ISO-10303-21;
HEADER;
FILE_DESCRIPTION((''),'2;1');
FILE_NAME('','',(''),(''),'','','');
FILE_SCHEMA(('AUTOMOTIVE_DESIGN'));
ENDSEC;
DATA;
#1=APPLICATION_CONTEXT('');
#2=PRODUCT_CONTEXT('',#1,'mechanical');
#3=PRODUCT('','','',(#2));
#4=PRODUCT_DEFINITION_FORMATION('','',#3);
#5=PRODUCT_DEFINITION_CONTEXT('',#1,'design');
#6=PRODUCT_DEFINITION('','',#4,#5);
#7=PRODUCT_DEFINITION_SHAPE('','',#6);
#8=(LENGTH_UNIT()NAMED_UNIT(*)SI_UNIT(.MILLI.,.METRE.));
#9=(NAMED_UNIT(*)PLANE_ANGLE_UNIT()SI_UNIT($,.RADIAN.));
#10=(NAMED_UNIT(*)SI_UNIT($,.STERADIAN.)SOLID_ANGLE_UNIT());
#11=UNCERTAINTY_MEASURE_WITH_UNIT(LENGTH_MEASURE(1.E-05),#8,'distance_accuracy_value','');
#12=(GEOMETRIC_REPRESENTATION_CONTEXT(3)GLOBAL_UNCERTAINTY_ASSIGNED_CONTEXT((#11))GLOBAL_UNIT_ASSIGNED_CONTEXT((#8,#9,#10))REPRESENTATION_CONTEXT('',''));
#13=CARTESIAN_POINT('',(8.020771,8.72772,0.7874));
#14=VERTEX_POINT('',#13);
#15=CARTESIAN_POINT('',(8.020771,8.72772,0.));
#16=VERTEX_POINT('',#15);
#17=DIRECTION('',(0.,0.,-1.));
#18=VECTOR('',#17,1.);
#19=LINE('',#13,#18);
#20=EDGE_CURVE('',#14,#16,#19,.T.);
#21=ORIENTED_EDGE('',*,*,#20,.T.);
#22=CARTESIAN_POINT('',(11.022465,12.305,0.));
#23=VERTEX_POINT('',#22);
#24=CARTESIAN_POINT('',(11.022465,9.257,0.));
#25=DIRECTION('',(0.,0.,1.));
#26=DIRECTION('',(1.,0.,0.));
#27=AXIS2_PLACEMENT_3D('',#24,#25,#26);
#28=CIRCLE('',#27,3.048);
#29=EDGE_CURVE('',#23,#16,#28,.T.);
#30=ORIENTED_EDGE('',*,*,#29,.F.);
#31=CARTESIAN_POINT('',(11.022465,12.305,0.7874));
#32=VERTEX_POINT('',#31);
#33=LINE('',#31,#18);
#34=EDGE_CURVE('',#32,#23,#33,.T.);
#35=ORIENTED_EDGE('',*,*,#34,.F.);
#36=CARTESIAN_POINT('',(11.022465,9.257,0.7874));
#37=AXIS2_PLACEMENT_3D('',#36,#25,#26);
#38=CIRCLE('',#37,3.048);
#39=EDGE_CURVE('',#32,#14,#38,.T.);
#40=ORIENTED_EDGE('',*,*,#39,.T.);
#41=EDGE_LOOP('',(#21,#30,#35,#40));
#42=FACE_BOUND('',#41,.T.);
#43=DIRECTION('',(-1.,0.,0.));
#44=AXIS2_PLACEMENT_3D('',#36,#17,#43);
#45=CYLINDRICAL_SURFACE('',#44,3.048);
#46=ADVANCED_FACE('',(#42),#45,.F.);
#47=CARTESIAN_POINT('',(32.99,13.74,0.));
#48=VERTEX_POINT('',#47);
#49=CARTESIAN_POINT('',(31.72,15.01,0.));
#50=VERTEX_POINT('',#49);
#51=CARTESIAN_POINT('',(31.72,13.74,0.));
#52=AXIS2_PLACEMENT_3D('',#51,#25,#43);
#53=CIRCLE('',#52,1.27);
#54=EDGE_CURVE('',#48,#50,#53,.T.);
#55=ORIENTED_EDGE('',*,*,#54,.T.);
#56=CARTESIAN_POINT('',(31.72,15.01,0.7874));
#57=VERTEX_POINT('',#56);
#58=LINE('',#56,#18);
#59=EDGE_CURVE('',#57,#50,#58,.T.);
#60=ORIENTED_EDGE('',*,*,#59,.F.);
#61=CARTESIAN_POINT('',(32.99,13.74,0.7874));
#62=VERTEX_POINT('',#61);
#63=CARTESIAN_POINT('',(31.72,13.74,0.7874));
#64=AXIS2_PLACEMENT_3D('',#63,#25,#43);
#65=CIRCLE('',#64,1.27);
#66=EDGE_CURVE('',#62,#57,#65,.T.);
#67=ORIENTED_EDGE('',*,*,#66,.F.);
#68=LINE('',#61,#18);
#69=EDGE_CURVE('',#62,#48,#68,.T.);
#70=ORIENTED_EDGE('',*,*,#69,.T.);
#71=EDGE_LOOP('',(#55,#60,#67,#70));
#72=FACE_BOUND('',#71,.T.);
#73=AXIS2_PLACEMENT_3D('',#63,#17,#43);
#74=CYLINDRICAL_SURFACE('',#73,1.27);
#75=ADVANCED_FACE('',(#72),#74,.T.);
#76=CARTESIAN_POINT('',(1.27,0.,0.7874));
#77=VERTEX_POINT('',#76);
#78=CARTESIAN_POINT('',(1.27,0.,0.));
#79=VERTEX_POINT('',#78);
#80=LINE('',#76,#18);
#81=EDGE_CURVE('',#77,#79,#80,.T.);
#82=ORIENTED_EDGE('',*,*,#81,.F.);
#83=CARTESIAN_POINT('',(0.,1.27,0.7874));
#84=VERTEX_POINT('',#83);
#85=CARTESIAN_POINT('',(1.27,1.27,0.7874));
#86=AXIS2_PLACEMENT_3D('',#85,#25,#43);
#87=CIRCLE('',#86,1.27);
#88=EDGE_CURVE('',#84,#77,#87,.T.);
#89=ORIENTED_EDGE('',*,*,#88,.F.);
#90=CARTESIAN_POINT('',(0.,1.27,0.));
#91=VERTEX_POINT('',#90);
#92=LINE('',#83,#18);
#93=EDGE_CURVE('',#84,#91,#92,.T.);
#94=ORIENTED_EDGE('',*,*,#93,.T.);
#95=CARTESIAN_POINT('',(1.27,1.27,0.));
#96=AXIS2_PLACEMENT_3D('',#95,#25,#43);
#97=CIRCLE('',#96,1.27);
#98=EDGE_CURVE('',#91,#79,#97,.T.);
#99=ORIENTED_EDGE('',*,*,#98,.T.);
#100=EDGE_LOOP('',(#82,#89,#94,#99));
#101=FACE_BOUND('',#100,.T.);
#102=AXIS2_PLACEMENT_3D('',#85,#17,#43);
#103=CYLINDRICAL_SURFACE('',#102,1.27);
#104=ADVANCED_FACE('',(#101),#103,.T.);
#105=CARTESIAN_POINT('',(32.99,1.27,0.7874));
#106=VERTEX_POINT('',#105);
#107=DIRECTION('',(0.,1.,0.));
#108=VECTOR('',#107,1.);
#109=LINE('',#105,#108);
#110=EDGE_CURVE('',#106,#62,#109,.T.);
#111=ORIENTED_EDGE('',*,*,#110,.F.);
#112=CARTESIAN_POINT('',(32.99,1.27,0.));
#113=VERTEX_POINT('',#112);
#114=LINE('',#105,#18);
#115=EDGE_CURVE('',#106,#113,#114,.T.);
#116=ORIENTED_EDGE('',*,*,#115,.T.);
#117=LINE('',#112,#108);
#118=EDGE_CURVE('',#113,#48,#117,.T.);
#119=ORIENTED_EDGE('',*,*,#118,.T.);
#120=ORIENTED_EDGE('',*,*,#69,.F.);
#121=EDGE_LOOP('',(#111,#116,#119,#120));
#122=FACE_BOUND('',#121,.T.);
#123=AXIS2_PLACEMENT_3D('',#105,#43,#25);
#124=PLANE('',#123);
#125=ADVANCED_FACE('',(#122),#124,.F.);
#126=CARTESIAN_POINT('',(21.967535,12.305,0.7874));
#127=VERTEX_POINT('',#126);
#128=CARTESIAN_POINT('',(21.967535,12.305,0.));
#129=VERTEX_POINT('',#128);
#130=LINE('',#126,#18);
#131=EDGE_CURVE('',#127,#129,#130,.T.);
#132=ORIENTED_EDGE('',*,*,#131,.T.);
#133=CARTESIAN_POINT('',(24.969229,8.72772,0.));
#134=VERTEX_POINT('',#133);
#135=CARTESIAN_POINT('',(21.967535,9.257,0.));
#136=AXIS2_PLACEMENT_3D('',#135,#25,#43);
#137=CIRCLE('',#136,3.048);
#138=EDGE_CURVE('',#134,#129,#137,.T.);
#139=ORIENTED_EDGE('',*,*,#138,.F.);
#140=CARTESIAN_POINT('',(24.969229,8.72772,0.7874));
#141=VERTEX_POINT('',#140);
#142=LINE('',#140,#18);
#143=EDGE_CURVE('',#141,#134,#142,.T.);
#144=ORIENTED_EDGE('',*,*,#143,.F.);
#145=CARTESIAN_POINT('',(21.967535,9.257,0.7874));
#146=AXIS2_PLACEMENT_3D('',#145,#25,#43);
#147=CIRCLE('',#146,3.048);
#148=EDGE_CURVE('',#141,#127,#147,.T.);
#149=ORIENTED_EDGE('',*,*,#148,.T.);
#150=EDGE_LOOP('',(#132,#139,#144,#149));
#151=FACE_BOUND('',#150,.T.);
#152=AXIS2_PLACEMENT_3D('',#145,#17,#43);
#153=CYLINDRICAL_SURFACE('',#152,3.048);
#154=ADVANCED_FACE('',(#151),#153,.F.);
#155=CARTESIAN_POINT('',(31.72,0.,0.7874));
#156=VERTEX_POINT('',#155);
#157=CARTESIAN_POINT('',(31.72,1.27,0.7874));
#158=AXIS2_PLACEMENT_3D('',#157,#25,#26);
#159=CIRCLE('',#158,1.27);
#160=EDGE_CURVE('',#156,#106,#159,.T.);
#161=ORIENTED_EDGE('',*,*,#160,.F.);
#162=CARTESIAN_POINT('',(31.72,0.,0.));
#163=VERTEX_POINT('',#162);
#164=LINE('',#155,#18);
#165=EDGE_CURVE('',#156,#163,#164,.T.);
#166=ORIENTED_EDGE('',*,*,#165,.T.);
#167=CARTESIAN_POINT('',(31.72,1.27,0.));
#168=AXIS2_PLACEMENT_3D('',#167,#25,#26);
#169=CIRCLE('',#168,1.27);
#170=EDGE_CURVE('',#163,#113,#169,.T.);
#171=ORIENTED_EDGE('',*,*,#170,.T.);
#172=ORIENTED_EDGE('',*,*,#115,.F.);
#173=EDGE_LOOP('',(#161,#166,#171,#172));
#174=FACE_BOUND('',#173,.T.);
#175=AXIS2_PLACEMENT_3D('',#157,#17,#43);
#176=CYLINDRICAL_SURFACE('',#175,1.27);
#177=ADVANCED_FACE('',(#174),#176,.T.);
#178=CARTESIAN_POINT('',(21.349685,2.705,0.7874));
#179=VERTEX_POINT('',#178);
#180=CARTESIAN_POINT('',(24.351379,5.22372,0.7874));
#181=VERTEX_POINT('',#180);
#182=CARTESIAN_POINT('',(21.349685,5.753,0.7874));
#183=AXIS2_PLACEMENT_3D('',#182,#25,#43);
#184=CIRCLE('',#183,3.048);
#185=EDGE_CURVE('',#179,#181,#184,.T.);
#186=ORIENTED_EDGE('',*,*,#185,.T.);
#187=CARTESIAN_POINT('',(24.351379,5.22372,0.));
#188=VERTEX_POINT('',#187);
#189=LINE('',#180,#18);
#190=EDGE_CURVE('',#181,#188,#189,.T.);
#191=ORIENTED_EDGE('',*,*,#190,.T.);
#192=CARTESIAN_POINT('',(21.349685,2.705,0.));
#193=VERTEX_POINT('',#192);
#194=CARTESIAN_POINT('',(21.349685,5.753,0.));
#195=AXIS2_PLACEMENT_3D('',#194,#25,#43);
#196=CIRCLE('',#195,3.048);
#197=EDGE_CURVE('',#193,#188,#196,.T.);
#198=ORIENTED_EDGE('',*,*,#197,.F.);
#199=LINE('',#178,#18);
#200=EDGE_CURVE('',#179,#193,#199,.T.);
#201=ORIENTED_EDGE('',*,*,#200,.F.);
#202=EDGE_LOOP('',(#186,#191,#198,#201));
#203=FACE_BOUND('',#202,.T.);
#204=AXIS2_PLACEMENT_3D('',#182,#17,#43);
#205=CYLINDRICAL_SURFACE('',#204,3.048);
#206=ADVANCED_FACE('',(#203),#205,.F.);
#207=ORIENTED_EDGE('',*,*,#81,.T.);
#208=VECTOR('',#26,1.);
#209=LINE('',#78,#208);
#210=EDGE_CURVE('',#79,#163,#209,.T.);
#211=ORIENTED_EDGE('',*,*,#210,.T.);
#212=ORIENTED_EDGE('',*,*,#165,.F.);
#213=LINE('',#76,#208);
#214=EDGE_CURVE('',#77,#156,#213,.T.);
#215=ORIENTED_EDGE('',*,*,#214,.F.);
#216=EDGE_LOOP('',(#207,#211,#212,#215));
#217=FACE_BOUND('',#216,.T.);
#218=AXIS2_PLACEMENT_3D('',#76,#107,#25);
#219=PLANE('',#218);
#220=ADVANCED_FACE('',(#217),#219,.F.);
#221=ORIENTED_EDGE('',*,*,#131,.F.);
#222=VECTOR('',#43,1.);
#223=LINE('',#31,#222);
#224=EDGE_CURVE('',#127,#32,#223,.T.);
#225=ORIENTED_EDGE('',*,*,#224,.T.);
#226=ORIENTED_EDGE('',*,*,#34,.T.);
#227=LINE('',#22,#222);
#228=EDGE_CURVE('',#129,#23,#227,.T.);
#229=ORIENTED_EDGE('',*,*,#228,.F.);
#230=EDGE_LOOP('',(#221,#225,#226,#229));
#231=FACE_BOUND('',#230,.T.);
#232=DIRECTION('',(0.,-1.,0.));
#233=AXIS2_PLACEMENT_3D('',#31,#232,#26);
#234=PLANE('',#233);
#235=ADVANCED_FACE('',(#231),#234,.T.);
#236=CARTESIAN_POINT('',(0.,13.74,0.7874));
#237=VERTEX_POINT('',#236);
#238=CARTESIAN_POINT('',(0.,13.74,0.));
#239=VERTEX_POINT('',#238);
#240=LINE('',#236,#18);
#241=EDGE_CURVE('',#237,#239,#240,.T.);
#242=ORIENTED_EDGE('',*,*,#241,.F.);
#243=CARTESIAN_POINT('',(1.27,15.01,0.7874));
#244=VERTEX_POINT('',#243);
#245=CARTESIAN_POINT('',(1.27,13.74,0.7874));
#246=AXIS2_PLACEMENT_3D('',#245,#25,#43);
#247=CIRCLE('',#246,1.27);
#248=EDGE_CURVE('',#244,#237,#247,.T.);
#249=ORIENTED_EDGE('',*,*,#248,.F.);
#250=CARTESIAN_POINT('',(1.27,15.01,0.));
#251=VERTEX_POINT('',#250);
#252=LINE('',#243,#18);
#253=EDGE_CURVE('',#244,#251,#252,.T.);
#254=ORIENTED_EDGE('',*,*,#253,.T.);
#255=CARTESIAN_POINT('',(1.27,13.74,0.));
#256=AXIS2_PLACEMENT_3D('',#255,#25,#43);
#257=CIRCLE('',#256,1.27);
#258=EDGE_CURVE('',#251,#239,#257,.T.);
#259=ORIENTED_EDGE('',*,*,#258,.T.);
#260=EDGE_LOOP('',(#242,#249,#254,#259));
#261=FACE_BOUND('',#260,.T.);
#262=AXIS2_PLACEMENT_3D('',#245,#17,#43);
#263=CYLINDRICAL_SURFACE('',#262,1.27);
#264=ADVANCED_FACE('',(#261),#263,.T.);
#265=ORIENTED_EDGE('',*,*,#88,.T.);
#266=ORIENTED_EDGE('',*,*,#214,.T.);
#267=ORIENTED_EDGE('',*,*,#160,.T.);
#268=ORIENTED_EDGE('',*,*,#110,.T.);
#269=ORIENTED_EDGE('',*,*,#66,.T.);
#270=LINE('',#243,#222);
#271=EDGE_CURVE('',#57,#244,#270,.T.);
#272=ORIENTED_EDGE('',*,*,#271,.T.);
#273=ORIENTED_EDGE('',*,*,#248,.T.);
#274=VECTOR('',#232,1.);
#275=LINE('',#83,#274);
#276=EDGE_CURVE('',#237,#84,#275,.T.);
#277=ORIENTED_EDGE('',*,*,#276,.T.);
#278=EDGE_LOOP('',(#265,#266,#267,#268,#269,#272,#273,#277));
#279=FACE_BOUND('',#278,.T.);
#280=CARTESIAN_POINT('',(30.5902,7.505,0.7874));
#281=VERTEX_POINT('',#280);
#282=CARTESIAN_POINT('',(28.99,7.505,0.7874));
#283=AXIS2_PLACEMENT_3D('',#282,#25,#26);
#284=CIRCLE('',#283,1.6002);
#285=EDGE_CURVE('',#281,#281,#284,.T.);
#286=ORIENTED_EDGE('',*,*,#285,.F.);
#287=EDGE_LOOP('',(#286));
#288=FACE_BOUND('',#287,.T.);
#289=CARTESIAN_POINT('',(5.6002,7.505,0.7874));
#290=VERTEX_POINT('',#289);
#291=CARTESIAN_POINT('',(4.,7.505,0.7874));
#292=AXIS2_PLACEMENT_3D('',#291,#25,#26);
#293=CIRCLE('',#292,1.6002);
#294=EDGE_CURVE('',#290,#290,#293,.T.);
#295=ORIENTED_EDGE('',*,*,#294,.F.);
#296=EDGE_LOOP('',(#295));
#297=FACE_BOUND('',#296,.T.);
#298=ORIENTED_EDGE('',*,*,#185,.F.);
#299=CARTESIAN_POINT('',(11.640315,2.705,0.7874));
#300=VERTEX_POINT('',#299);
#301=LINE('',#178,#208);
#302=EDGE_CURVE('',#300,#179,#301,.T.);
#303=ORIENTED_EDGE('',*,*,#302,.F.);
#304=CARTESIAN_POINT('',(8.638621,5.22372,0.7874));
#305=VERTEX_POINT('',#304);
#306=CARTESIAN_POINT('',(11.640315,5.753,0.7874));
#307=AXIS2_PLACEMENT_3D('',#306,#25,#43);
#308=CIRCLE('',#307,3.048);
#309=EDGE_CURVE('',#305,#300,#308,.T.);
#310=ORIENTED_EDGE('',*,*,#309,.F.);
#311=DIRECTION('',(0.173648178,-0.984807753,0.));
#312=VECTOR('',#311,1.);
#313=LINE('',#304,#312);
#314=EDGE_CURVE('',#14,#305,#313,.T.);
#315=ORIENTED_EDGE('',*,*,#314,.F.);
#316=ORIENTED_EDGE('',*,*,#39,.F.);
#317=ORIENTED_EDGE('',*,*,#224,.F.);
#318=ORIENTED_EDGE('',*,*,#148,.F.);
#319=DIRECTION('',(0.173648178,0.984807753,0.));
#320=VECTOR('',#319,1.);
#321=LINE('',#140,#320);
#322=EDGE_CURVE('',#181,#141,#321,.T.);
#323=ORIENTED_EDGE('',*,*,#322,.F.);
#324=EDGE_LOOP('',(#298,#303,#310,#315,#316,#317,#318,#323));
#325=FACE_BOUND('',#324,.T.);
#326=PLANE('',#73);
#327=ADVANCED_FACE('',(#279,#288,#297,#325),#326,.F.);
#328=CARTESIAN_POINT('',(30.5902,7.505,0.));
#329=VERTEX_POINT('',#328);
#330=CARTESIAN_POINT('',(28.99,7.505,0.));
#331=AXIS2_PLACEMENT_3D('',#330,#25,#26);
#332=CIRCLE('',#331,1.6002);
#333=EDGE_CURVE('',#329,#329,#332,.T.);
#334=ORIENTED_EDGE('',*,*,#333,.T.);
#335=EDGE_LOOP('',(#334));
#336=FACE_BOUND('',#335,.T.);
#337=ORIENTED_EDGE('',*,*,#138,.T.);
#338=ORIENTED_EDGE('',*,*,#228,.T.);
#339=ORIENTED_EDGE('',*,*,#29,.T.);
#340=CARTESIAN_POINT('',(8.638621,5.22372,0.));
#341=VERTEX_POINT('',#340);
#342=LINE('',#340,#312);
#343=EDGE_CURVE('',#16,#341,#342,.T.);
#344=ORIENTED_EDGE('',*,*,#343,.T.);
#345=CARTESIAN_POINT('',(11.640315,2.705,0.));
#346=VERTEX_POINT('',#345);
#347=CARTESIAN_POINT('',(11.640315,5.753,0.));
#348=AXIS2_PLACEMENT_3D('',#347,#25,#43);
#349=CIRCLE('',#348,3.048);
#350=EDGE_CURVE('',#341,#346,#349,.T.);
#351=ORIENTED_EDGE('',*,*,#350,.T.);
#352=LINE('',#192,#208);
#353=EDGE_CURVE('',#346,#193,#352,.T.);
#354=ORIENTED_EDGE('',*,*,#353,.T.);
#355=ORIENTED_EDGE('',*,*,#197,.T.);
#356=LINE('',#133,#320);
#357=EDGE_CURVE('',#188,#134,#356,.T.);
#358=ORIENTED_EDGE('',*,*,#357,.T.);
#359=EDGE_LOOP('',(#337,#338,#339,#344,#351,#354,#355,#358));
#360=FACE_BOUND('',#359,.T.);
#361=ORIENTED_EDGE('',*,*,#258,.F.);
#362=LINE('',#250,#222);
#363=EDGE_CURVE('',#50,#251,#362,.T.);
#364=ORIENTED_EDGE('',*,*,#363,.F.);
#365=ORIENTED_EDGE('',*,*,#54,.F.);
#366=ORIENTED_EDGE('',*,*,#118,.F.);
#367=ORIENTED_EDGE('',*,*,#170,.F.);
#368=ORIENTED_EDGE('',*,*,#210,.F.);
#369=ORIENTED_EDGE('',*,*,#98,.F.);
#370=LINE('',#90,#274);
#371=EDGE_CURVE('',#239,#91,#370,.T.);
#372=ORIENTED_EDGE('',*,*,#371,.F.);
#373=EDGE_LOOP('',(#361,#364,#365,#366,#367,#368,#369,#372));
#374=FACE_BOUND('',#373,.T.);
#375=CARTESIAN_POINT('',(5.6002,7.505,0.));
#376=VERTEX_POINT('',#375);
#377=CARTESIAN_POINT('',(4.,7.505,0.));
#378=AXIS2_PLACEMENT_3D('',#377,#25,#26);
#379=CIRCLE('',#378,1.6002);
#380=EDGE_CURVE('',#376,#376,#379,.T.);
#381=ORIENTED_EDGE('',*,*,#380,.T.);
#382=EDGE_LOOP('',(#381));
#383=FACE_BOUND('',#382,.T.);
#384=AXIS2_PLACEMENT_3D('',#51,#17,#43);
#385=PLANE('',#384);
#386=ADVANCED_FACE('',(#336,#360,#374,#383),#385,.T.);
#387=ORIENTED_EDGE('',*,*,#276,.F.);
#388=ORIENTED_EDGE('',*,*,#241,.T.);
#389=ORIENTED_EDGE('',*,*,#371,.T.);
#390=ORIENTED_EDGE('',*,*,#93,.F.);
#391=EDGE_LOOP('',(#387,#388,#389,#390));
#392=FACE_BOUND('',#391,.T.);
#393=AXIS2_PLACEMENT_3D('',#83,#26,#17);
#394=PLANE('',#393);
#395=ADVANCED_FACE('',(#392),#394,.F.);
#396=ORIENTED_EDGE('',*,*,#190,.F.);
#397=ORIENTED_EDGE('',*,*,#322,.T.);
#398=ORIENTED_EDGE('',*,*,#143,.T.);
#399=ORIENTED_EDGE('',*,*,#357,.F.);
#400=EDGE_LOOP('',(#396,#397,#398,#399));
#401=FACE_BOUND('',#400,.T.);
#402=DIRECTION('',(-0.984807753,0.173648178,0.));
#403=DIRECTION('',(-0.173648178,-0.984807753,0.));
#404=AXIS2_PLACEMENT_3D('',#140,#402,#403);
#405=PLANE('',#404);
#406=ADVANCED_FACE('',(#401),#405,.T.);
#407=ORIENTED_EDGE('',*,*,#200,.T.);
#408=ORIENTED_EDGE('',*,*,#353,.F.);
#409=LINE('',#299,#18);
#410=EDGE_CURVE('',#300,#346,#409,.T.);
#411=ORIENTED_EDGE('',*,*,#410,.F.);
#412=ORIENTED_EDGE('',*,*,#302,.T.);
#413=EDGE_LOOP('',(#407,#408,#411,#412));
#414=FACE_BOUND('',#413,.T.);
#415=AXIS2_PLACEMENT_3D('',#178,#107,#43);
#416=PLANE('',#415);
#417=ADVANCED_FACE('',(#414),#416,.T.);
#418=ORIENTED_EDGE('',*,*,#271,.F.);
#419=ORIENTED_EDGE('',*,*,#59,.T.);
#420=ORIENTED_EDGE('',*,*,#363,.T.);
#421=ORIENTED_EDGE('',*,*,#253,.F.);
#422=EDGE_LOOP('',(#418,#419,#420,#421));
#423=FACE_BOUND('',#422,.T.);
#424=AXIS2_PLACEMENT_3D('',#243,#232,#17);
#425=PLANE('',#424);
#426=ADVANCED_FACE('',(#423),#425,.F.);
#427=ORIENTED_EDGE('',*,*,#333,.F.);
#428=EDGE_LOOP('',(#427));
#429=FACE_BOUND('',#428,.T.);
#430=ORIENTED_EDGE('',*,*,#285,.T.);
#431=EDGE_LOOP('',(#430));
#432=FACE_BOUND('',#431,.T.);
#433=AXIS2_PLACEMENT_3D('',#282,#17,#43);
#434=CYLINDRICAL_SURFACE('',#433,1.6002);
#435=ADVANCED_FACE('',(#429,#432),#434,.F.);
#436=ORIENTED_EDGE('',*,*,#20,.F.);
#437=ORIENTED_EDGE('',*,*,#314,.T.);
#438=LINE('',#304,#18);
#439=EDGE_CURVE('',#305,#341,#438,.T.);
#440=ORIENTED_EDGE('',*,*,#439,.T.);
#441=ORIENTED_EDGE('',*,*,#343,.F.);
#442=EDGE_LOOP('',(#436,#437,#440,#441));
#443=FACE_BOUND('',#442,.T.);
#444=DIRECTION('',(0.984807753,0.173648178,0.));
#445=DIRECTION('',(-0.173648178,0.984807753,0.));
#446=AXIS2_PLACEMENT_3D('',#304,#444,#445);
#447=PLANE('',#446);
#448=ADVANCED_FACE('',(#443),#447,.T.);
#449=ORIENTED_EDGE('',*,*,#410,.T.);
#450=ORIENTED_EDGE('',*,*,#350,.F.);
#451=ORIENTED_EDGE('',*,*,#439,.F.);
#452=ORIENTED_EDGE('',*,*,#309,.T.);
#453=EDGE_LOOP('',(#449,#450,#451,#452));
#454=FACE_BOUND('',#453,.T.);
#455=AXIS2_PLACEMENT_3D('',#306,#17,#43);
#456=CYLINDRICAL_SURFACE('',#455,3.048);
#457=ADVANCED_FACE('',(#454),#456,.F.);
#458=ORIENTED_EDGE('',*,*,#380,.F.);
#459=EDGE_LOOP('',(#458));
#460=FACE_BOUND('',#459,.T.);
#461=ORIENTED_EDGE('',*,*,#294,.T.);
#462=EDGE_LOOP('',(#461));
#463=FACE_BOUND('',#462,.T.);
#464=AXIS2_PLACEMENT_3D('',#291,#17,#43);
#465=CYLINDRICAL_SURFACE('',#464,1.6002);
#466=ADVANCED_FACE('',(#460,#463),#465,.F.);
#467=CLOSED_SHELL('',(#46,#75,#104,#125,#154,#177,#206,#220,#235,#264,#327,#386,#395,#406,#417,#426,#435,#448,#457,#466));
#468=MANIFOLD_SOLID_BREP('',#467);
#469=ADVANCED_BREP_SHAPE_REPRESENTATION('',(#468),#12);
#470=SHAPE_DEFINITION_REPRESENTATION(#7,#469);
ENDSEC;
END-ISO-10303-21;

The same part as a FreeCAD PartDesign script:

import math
import FreeCAD as App
import Part
import Sketcher

V = App.Vector
Q = App.Units.Quantity

doc = App.newDocument("Part")
body = doc.addObject("PartDesign::Body", "Body")

# Sketch on XY plane
sketch1 = doc.addObject("Sketcher::SketchObject", "Sketch")
body.addObject(sketch1)
sketch1.AttachmentSupport = (doc.XY_Plane, [""])
sketch1.MapMode = "FlatFace"
sketch1.addGeometry([
    Part.LineSegment(V(1.3, 0, 0), V(31.7, 0, 0)),  # 0
    Part.ArcOfCircle(Part.Circle(V(31.7, 1.3, 0), V(0, 0, 1), 1.3), math.radians(-90), math.radians(0)),  # 1
    Part.LineSegment(V(33, 1.3, 0), V(33, 13.7, 0)),  # 2
    Part.ArcOfCircle(Part.Circle(V(31.7, 13.7, 0), V(0, 0, 1), 1.3), math.radians(0), math.radians(90)),  # 3
    Part.LineSegment(V(31.7, 15, 0), V(1.3, 15, 0)),  # 4
    Part.ArcOfCircle(Part.Circle(V(1.3, 13.7, 0), V(0, 0, 1), 1.3), math.radians(90), math.radians(180)),  # 5
    Part.LineSegment(V(0, 13.7, 0), V(0, 1.3, 0)),  # 6
    Part.ArcOfCircle(Part.Circle(V(1.3, 1.3, 0), V(0, 0, 1), 1.3), math.radians(180), math.radians(270)),  # 7
    Part.Circle(V(4, 7.5, 0), V(0, 0, 1), 1.6),  # 8
    Part.ArcOfCircle(Part.Circle(V(11, 9.3, 0), V(0, 0, 1), 3), math.radians(90), math.radians(190)),  # 9
    Part.LineSegment(V(11, 12.3, 0), V(22, 12.3, 0)),  # 10
    Part.ArcOfCircle(Part.Circle(V(22, 9.3, 0), V(0, 0, 1), 3), math.radians(-10), math.radians(90)),  # 11
    Part.LineSegment(V(25, 8.7, 0), V(24.4, 5.2, 0)),  # 12
    Part.ArcOfCircle(Part.Circle(V(21.3, 5.8, 0), V(0, 0, 1), 3), math.radians(-90), math.radians(-10)),  # 13
    Part.LineSegment(V(21.3, 2.7, 0), V(11.6, 2.7, 0)),  # 14
    Part.ArcOfCircle(Part.Circle(V(11.6, 5.8, 0), V(0, 0, 1), 3), math.radians(-170), math.radians(-90)),  # 15
    Part.LineSegment(V(8.6, 5.2, 0), V(8, 8.7, 0)),  # 16
    Part.Circle(V(29, 7.5, 0), V(0, 0, 1), 1.6),  # 17
], False)
sketch1.addConstraint([
    Sketcher.Constraint("Tangent", 0, 2, 1, 1),
    Sketcher.Constraint("Tangent", 1, 2, 2, 1),
    Sketcher.Constraint("Tangent", 2, 2, 3, 1),
    Sketcher.Constraint("Tangent", 3, 2, 4, 1),
    Sketcher.Constraint("Tangent", 4, 2, 5, 1),
    Sketcher.Constraint("Tangent", 5, 2, 6, 1),
    Sketcher.Constraint("Tangent", 6, 2, 7, 1),
    Sketcher.Constraint("Tangent", 7, 2, 0, 1),
    Sketcher.Constraint("Tangent", 9, 1, 10, 1),
    Sketcher.Constraint("Tangent", 10, 2, 11, 2),
    Sketcher.Constraint("Tangent", 11, 1, 12, 1),
    Sketcher.Constraint("Tangent", 12, 2, 13, 2),
    Sketcher.Constraint("Tangent", 13, 1, 14, 1),
    Sketcher.Constraint("Tangent", 14, 2, 15, 2),
    Sketcher.Constraint("Tangent", 15, 1, 16, 1),
    Sketcher.Constraint("Tangent", 16, 2, 9, 2),
    Sketcher.Constraint("Horizontal", 0),
    Sketcher.Constraint("Vertical", 2),
    Sketcher.Constraint("Horizontal", 4),
    Sketcher.Constraint("Vertical", 6),
    Sketcher.Constraint("Horizontal", 10),
    Sketcher.Constraint("Horizontal", 14),
    Sketcher.Constraint("Equal", 1, 3),
    Sketcher.Constraint("Equal", 3, 5),
    Sketcher.Constraint("Equal", 5, 7),
    Sketcher.Constraint("Equal", 9, 11),
    Sketcher.Constraint("Equal", 11, 13),
    Sketcher.Constraint("Equal", 13, 15),
    Sketcher.Constraint("Equal", 8, 17),
    Sketcher.Constraint("PointOnObject", 0, 2, -1),
    Sketcher.Constraint("PointOnObject", 5, 2, -2),
    Sketcher.Constraint("Horizontal", 8, 3, 17, 3),
    Sketcher.Constraint("Horizontal", 12, 2, 15, 1),
    Sketcher.Constraint("Radius", 1, Q("0.05 in")),
    Sketcher.Constraint("Radius", 9, Q("0.12 in")),
    Sketcher.Constraint("Diameter", 8, Q("0.126 in")),
    Sketcher.Constraint("Angle", 12, Q("-100 deg")),
    Sketcher.Constraint("DistanceX", 0, 1, 0, 2, Q("30.45 mm")),
    Sketcher.Constraint("DistanceY", 2, 1, 2, 2, Q("12.47 mm")),
    Sketcher.Constraint("DistanceX", 10, 1, 10, 2, Q("10.94507 mm")),
    Sketcher.Constraint("DistanceX", 14, 2, 14, 1, Q("9.709371 mm")),
    Sketcher.Constraint("DistanceX", -1, 1, 8, 3, Q("4 mm")),
    Sketcher.Constraint("DistanceY", -1, 1, 8, 3, Q("7.505 mm")),
    Sketcher.Constraint("DistanceY", -1, 1, 9, 3, Q("9.257 mm")),
    Sketcher.Constraint("DistanceX", -1, 1, 17, 3, Q("28.99 mm")),
    Sketcher.Constraint("DistanceX", -1, 1, 11, 1, Q("24.969229 mm")),
])
pad1 = doc.addObject("PartDesign::Pad", "Pad")
body.addObject(pad1)
pad1.Profile = sketch1
pad1.Length = Q("0.031 in")

doc.recompute()
